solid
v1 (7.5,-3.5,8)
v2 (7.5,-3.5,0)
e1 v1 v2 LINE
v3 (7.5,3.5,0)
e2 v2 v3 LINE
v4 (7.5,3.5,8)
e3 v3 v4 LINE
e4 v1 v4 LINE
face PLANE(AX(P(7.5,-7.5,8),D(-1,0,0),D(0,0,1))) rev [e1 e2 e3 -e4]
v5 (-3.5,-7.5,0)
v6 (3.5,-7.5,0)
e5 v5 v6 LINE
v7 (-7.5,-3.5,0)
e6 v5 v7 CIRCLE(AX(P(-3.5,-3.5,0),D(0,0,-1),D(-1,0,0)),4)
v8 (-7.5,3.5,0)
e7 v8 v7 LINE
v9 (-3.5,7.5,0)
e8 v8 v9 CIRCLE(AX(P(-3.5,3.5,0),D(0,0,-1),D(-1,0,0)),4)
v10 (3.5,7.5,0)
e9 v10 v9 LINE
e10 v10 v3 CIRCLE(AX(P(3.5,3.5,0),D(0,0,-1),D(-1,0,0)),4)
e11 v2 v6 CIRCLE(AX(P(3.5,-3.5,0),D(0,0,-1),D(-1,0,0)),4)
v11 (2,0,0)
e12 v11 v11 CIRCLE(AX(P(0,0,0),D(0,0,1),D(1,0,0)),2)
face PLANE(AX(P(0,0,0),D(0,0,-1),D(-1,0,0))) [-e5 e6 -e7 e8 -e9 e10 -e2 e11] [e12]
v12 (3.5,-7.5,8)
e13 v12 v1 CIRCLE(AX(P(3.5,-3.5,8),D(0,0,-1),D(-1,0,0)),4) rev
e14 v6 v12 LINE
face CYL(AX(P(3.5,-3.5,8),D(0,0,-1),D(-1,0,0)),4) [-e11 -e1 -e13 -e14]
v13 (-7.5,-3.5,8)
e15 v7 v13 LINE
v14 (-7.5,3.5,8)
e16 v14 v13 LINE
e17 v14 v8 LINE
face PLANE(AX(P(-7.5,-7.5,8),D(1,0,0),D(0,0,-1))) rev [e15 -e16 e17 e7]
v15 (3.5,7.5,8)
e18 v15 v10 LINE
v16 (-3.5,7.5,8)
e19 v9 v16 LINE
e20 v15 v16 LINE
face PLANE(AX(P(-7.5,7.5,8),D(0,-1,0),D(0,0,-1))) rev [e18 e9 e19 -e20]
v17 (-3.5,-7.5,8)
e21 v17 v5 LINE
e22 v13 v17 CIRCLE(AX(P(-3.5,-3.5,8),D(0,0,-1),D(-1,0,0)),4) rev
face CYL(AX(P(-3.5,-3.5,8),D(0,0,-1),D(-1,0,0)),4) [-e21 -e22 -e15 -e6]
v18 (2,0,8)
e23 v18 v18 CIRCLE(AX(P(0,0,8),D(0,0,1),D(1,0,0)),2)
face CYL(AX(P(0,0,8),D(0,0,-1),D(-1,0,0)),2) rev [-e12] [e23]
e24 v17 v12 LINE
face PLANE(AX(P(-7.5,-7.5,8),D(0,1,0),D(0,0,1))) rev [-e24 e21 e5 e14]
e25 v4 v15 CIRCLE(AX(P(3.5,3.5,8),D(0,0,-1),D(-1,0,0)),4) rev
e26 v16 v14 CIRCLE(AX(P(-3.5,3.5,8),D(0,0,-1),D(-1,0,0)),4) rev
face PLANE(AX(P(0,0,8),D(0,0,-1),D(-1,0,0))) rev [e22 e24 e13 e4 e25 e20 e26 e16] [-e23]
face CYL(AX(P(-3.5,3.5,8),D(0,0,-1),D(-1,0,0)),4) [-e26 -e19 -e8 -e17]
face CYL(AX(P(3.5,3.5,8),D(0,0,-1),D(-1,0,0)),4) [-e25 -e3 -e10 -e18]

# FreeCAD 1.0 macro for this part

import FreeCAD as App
import Part
import Sketcher


def edges_at(feature, points):
    """Names of the edges that pass closest to the given points."""
    edges = feature.Shape.Edges
    near = lambda p: min(range(len(edges)), key=lambda i: edges[i].distToShape(Part.Vertex(*p))[0])
    return sorted({f"Edge{near(p) + 1}" for p in points})


def add_polygon(sketch, points):
    """Adds a closed chain of lines whose ends are joined by coincident constraints."""
    first, n = sketch.GeometryCount, len(points)
    for a, b in zip(points, points[1:] + points[:1]):
        sketch.addGeometry(Part.LineSegment(App.Vector(*a, 0), App.Vector(*b, 0)), False)
    for i in range(n):
        sketch.addConstraint(Sketcher.Constraint("Coincident", first + i, 2, first + (i + 1) % n, 1))

doc = App.newDocument("Part")
body = doc.addObject("PartDesign::Body", "Body")

# Sketch on XY plane
sketch1 = doc.addObject("Sketcher::SketchObject", "Sketch")
body.addObject(sketch1)
sketch1.AttachmentSupport = (doc.XY_Plane, [""])
sketch1.MapMode = "FlatFace"
add_polygon(sketch1, [(-7.5, 7.5), (-7.5, -7.5), (7.5, -7.5), (7.5, 7.5)])  # lines 0-3
sketch1.addGeometry(Part.Circle(App.Vector(0, 0, 0), App.Vector(0, 0, 1), 2), False)  # 4
sketch1.addConstraint([
    Sketcher.Constraint("Vertical", 0),
    Sketcher.Constraint("Horizontal", 1),
    Sketcher.Constraint("Vertical", 2),
    Sketcher.Constraint("Horizontal", 3),
    Sketcher.Constraint("Coincident", 4, 3, -1, 1),
    Sketcher.Constraint("Symmetric", 0, 2, 2, 2, -1, 1),
    Sketcher.Constraint("Equal", 3, 0),
    Sketcher.Constraint("Diameter", 4, 4.0),
    Sketcher.Constraint("DistanceX", 1, 1, 1, 2, 15.0),
])
pad1 = doc.addObject("PartDesign::Pad", "Pad")
body.addObject(pad1)
pad1.Profile = sketch1
pad1.Length = 8
doc.recompute()

fillet = doc.addObject("PartDesign::Fillet", "Fillet")
body.addObject(fillet)
fillet.Base = (pad1, edges_at(pad1, [
    (7.5, -7.5, 4),
    (-7.5, -7.5, 4),
    (-7.5, 7.5, 4),
    (7.5, 7.5, 4),
]))
fillet.Radius = 4

doc.recompute()
